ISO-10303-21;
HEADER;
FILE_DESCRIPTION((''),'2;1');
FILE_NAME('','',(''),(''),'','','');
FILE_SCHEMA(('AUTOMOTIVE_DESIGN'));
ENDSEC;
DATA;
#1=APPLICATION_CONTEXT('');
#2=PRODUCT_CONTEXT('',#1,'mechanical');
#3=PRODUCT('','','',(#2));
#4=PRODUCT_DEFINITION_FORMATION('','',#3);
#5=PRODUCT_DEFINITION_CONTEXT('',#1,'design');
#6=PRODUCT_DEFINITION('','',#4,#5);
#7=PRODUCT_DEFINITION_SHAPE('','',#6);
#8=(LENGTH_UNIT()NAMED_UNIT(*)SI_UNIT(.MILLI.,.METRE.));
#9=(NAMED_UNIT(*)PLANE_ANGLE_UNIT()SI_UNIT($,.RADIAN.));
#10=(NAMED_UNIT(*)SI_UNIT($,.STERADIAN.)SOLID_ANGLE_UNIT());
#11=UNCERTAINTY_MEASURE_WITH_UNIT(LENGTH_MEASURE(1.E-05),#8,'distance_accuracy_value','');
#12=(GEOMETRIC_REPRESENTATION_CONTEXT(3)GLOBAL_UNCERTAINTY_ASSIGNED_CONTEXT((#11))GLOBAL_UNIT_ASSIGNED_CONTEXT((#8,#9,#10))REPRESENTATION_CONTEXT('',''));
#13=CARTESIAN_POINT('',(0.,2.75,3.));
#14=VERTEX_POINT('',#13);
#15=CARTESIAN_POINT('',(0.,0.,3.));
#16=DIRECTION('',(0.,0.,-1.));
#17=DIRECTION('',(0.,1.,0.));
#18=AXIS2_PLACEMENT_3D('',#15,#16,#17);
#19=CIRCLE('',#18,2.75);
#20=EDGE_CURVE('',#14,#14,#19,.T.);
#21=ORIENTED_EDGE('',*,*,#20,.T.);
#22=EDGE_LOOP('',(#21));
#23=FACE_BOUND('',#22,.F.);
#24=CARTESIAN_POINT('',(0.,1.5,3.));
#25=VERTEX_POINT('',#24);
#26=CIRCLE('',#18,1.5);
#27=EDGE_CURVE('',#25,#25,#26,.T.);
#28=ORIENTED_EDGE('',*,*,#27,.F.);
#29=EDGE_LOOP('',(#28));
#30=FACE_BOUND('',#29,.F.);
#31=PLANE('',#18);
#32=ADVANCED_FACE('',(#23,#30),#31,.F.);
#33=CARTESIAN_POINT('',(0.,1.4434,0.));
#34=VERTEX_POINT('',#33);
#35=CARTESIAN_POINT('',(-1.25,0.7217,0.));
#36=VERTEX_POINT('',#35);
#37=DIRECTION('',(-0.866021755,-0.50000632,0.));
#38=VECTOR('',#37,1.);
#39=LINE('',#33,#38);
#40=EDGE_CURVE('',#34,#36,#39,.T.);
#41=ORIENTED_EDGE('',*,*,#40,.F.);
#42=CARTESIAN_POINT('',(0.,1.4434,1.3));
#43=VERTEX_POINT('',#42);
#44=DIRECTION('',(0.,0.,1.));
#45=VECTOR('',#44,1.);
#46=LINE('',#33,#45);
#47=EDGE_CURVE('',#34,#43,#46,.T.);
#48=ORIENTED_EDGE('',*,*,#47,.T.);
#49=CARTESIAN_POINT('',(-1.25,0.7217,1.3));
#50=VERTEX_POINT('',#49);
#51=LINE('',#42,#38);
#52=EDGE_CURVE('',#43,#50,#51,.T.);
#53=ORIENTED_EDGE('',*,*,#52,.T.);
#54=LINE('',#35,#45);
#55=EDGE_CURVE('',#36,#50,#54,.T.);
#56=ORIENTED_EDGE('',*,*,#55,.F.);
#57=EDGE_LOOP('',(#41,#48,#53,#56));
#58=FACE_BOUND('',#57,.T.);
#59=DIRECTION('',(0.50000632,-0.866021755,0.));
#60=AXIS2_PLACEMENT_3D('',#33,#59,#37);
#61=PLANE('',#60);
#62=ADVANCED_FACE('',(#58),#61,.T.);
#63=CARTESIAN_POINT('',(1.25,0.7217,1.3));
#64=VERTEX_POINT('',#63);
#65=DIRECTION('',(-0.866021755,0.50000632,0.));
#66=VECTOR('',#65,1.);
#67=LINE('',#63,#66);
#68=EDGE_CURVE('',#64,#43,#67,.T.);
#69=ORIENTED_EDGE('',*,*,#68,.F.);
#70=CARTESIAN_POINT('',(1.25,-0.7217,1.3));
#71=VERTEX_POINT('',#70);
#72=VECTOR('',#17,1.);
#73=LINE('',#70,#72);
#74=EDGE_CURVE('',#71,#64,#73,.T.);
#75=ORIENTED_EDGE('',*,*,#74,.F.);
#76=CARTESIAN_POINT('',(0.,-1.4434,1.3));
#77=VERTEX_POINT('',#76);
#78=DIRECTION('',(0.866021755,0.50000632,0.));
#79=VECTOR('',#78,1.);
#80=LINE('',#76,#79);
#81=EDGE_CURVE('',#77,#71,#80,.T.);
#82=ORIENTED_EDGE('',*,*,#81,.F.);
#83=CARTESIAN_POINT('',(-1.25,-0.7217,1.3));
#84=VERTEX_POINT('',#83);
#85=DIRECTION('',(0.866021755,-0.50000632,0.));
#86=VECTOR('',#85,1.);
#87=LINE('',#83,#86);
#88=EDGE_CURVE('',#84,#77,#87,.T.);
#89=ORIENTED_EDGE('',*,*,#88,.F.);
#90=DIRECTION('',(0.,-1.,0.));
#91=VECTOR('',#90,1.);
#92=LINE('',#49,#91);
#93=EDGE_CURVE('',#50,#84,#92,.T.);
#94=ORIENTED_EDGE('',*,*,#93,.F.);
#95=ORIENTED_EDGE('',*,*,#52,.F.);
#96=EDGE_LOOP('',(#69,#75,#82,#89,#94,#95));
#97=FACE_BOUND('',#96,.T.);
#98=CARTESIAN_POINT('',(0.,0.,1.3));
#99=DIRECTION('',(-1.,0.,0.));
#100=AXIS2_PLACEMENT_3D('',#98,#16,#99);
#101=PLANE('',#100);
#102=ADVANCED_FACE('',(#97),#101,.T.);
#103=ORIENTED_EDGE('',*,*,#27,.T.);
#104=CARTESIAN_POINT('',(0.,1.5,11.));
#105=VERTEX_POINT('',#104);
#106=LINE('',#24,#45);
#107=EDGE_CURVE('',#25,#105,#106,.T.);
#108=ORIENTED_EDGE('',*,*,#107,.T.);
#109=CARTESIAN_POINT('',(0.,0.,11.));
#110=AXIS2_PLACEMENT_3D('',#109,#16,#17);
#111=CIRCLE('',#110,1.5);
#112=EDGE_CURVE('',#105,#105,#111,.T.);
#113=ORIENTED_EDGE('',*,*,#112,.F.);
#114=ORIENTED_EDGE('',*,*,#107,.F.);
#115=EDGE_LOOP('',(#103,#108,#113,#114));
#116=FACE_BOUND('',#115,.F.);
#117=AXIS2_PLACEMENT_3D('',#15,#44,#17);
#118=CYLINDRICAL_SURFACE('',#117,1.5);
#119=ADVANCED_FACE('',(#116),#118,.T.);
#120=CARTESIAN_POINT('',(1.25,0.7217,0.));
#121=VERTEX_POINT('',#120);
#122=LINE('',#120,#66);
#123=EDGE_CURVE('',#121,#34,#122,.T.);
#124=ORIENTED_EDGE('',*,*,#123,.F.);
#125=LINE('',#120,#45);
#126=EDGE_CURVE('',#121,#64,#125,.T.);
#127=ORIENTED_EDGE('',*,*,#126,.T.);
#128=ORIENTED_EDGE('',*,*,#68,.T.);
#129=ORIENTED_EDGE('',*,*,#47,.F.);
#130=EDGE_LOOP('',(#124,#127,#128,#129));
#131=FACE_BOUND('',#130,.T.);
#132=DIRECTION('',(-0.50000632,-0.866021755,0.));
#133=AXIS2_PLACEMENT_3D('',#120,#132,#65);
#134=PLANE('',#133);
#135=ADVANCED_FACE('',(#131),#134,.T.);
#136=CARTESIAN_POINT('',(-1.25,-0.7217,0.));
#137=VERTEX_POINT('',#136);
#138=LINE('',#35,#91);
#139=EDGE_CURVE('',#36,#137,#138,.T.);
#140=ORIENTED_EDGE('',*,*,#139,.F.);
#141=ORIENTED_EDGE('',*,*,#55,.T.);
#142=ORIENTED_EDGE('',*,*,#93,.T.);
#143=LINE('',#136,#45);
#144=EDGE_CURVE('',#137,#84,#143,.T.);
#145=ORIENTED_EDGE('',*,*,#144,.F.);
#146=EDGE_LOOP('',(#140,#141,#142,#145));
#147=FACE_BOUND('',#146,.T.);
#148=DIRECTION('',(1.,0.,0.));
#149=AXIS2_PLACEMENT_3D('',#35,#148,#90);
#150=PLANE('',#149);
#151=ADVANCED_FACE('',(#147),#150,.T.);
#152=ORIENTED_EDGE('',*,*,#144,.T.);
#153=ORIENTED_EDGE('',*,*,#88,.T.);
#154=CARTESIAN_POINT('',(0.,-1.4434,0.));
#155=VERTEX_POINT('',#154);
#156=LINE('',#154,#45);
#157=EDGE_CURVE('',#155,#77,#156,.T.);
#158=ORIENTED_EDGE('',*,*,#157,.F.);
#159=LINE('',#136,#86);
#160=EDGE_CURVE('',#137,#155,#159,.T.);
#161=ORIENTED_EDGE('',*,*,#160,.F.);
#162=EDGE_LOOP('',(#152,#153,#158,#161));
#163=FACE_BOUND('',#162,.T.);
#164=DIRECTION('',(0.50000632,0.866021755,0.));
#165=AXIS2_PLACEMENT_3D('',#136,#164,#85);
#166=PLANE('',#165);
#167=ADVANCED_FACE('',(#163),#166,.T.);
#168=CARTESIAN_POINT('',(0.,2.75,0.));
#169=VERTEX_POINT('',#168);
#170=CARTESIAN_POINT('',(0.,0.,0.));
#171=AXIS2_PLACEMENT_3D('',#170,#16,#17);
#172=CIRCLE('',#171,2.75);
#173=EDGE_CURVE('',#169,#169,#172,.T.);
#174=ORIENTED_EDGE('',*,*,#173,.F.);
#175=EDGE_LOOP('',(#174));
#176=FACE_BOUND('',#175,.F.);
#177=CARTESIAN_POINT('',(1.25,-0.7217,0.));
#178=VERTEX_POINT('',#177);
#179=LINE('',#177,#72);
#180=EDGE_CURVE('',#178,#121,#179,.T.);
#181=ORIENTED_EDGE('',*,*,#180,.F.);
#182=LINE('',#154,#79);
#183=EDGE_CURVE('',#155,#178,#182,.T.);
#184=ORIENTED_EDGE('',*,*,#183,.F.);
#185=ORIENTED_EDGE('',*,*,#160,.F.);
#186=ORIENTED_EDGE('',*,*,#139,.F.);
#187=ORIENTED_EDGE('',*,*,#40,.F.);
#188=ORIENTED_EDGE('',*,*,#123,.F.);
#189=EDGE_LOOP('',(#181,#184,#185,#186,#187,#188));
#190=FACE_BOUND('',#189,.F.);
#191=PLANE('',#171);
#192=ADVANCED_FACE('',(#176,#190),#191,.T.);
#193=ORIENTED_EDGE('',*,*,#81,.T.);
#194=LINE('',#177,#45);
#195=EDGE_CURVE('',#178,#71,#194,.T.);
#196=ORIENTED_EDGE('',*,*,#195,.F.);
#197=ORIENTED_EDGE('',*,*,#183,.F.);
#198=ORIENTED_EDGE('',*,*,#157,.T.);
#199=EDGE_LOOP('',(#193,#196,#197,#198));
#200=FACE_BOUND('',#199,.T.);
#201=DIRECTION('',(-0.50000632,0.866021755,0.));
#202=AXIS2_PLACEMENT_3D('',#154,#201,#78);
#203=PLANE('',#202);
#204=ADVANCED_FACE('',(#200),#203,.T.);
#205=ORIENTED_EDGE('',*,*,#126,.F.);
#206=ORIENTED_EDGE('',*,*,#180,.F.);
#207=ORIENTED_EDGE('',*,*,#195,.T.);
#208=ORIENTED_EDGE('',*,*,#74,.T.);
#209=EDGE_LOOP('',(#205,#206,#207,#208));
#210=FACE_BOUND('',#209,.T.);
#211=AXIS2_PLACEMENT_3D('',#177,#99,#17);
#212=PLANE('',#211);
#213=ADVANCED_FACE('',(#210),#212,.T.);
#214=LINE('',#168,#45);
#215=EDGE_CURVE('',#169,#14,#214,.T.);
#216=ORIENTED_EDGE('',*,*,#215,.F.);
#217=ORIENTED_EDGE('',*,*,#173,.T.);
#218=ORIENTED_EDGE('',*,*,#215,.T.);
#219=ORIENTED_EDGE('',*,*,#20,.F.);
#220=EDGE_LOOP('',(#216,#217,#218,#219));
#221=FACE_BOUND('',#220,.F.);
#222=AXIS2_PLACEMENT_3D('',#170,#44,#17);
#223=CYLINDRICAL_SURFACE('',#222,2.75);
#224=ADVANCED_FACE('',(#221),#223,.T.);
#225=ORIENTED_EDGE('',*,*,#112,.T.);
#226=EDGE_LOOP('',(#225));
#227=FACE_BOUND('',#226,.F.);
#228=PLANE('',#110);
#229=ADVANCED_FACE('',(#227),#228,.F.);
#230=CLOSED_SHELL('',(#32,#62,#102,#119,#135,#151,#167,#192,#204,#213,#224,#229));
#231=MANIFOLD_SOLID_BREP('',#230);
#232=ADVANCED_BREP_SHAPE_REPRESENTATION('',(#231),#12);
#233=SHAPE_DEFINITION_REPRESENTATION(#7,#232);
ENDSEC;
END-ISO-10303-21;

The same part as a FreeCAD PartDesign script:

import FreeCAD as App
import Part
import Sketcher
from FreeCAD import Vector
Q = App.Units.Quantity

doc = App.newDocument("Part")
body = doc.addObject("PartDesign::Body", "Body")

sketch1 = body.newObject("Sketcher::SketchObject", "Sketch")
sketch1.AttachmentSupport = (doc.getObject("YZ_Plane"), [""])
sketch1.MapMode = "FlatFace"
sketch1.addGeometry(Part.LineSegment(Vector(1.5, 11, 0), Vector(0, 11, 0)), False)
sketch1.addGeometry(Part.LineSegment(Vector(0, 11, 0), Vector(0, 0, 0)), False)
sketch1.addGeometry(Part.LineSegment(Vector(0, 0, 0), Vector(2.8, 0, 0)), False)
sketch1.addGeometry(Part.LineSegment(Vector(2.8, 0, 0), Vector(2.8, 3, 0)), False)
sketch1.addGeometry(Part.LineSegment(Vector(2.8, 3, 0), Vector(1.5, 3, 0)), False)
sketch1.addGeometry(Part.LineSegment(Vector(1.5, 3, 0), Vector(1.5, 11, 0)), False)
sketch1.addConstraint(Sketcher.Constraint("Coincident", 0, 2, 1, 1))
sketch1.addConstraint(Sketcher.Constraint("Coincident", 1, 2, 2, 1))
sketch1.addConstraint(Sketcher.Constraint("Coincident", 2, 2, 3, 1))
sketch1.addConstraint(Sketcher.Constraint("Coincident", 3, 2, 4, 1))
sketch1.addConstraint(Sketcher.Constraint("Coincident", 4, 2, 5, 1))
sketch1.addConstraint(Sketcher.Constraint("Coincident", 5, 2, 0, 1))
sketch1.addConstraint(Sketcher.Constraint("Horizontal", 0))
sketch1.addConstraint(Sketcher.Constraint("Vertical", 1))
sketch1.addConstraint(Sketcher.Constraint("Horizontal", 2))
sketch1.addConstraint(Sketcher.Constraint("Vertical", 3))
sketch1.addConstraint(Sketcher.Constraint("Horizontal", 4))
sketch1.addConstraint(Sketcher.Constraint("Vertical", 5))
sketch1.addConstraint(Sketcher.Constraint("Coincident", 1, 2, -1, 1))
sketch1.addConstraint(Sketcher.Constraint("DistanceY", 3, 1, 3, 2, 3.0))
sketch1.addConstraint(Sketcher.Constraint("DistanceY", 5, 1, 5, 2, 8.0))
sketch1.addConstraint(Sketcher.Constraint("DistanceX", 0, 2, 0, 1, 1.5))
sketch1.addConstraint(Sketcher.Constraint("DistanceX", 2, 1, 2, 2, 2.75))
revolution = body.newObject("PartDesign::Revolution", "Revolution")
revolution.Profile = sketch1
revolution.ReferenceAxis = (sketch1, ["V_Axis"])
revolution.Angle = 360

sketch2 = body.newObject("Sketcher::SketchObject", "Sketch001")
sketch2.AttachmentSupport = (doc.getObject("XY_Plane"), [""])
sketch2.MapMode = "FlatFace"
sketch2.addGeometry(Part.LineSegment(Vector(-1.2, 0.7, 0), Vector(0, 1.4, 0)), False)
sketch2.addGeometry(Part.LineSegment(Vector(0, 1.4, 0), Vector(1.2, 0.7, 0)), False)
sketch2.addGeometry(Part.LineSegment(Vector(1.2, 0.7, 0), Vector(1.2, -0.7, 0)), False)
sketch2.addGeometry(Part.LineSegment(Vector(1.2, -0.7, 0), Vector(0, -1.4, 0)), False)
sketch2.addGeometry(Part.LineSegment(Vector(0, -1.4, 0), Vector(-1.2, -0.7, 0)), False)
sketch2.addGeometry(Part.LineSegment(Vector(-1.2, -0.7, 0), Vector(-1.2, 0.7, 0)), False)
sketch2.addConstraint(Sketcher.Constraint("Coincident", 0, 2, 1, 1))
sketch2.addConstraint(Sketcher.Constraint("Coincident", 1, 2, 2, 1))
sketch2.addConstraint(Sketcher.Constraint("Coincident", 2, 2, 3, 1))
sketch2.addConstraint(Sketcher.Constraint("Coincident", 3, 2, 4, 1))
sketch2.addConstraint(Sketcher.Constraint("Coincident", 4, 2, 5, 1))
sketch2.addConstraint(Sketcher.Constraint("Coincident", 5, 2, 0, 1))
sketch2.addConstraint(Sketcher.Constraint("Vertical", 2))
sketch2.addConstraint(Sketcher.Constraint("Vertical", 5))
sketch2.addConstraint(Sketcher.Constraint("Symmetric", 0, 2, 3, 2, -1, 1))
sketch2.addConstraint(Sketcher.Constraint("Symmetric", 1, 2, 4, 2, -1, 1))
sketch2.addConstraint(Sketcher.Constraint("PointOnObject", 0, 2, -2))
sketch2.addConstraint(Sketcher.Constraint("Parallel", 0, 3))
sketch2.addConstraint(Sketcher.Constraint("Horizontal", 2, 2, 4, 2))
sketch2.addConstraint(Sketcher.Constraint("DistanceX", 4, 2, 2, 2, 2.5))
sketch2.addConstraint(Sketcher.Constraint("Angle", 0, Q("30.0004 deg")))
sketch2.addConstraint(Sketcher.Constraint("DistanceY", 2, 2, 2, 1, 1.4434))
pocket1 = body.newObject("PartDesign::Pocket", "Pocket")
pocket1.Profile = sketch2
pocket1.Length = 1.3
pocket1.Reversed = True

doc.recompute()
